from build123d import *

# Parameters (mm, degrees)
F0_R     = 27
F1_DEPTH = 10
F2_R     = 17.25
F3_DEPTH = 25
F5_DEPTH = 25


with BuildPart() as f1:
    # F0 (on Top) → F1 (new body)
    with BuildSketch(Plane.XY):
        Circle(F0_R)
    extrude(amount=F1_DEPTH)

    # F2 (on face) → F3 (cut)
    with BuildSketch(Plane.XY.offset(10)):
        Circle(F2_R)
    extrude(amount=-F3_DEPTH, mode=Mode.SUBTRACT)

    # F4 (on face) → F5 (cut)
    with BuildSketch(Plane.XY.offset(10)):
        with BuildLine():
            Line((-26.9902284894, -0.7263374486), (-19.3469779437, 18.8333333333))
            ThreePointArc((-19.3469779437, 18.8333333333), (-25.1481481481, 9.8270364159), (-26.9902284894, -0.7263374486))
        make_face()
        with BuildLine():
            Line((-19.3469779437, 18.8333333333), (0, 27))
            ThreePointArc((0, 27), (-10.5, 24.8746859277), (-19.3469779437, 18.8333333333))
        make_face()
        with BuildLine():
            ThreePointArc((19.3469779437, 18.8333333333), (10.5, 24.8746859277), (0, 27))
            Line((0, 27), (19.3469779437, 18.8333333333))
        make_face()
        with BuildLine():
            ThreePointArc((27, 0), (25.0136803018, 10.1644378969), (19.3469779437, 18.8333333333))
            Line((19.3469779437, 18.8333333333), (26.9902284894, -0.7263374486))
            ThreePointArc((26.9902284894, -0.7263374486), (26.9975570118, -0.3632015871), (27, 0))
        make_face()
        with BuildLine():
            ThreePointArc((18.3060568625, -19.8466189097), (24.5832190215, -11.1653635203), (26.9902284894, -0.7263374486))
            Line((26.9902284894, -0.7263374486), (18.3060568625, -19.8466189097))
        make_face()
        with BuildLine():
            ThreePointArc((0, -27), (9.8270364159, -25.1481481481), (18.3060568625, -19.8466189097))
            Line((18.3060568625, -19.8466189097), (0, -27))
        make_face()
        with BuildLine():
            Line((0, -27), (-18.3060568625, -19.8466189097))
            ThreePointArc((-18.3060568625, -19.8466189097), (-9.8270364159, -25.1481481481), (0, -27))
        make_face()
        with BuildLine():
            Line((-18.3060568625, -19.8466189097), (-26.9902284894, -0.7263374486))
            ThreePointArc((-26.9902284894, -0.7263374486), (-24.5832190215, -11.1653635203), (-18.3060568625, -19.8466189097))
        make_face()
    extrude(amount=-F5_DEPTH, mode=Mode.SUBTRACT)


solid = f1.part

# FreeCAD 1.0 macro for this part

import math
import FreeCAD as App
import Part
import Sketcher
from FreeCAD import Vector
Q = App.Units.Quantity

doc = App.newDocument("Part")
body = doc.addObject("PartDesign::Body", "Body")

# Sketch on XY plane
sketch1 = body.newObject("Sketcher::SketchObject", "Sketch")
sketch1.AttachmentSupport = (doc.getObject("XY_Plane"), [""])
sketch1.MapMode = "FlatFace"
sketch1.addGeometry(Part.Circle(Vector(0, 0, 0), Vector(0, 0, 1), 27), False)
sketch1.addConstraint([
    Sketcher.Constraint("Coincident", 0, 3, -1, 1),
    Sketcher.Constraint("Diameter", 0, Q("54 mm")),
])
pad1 = body.newObject("PartDesign::Pad", "Pad")
pad1.Profile = sketch1
pad1.Length = 10

# Sketch on XY plane
sketch2 = body.newObject("Sketcher::SketchObject", "Sketch001")
sketch2.AttachmentSupport = (doc.getObject("XY_Plane"), [""])
sketch2.MapMode = "FlatFace"
sketch2.AttachmentOffset = App.Placement(Vector(0, 0, 10), App.Rotation())
sketch2.addGeometry(Part.Circle(Vector(0, 0, 0), Vector(0, 0, 1), 17.25), False)
sketch2.addConstraint([
    Sketcher.Constraint("Coincident", 0, 3, -1, 1),
    Sketcher.Constraint("Diameter", 0, Q("34.5 mm")),
])
pocket1 = body.newObject("PartDesign::Pocket", "Pocket")
pocket1.Profile = sketch2
pocket1.Length = 25

# Sketch on XY plane
sketch3 = body.newObject("Sketcher::SketchObject", "Sketch002")
sketch3.AttachmentSupport = (doc.getObject("XY_Plane"), [""])
sketch3.MapMode = "FlatFace"
sketch3.AttachmentOffset = App.Placement(Vector(0, 0, 10), App.Rotation())
sketch3.addGeometry([
    Part.LineSegment(Vector(-26.990228, -0.726337, 0), Vector(-19.346978, 18.833333, 0)),  # 0
    Part.ArcOfCircle(Part.Circle(Vector(0, 0, 0), Vector(0, 0, 1), 27), math.radians(135.770761), math.radians(181.541522)),  # 1
    Part.LineSegment(Vector(-19.346978, 18.833333, 0), Vector(0, 27, 0)),  # 2
    Part.ArcOfCircle(Part.Circle(Vector(0, 0, 0), Vector(0, 0, 1), 27), math.radians(90), math.radians(135.770761)),  # 3
    Part.ArcOfCircle(Part.Circle(Vector(0, 0, 0), Vector(0, 0, 1), 27), math.radians(44.229239), math.radians(90)),  # 4
    Part.LineSegment(Vector(0, 27, 0), Vector(19.346978, 18.833333, 0)),  # 5
    Part.ArcOfCircle(Part.Circle(Vector(0, 0, 0), Vector(0, 0, 1), 27), math.radians(0), math.radians(44.229239)),  # 6
    Part.LineSegment(Vector(19.346978, 18.833333, 0), Vector(26.990228, -0.726337, 0)),  # 7
    Part.ArcOfCircle(Part.Circle(Vector(0, 0, 0), Vector(0, 0, 1), 27), math.radians(-1.541522), math.radians(0)),  # 8
    Part.ArcOfCircle(Part.Circle(Vector(0, 0, 0), Vector(0, 0, 1), 27), math.radians(-47.312283), math.radians(-1.541522)),  # 9
    Part.LineSegment(Vector(26.990228, -0.726337, 0), Vector(18.306057, -19.846619, 0)),  # 10
    Part.ArcOfCircle(Part.Circle(Vector(0, 0, 0), Vector(0, 0, 1), 27), math.radians(-90), math.radians(-47.312283)),  # 11
    Part.LineSegment(Vector(18.306057, -19.846619, 0), Vector(0, -27, 0)),  # 12
    Part.LineSegment(Vector(0, -27, 0), Vector(-18.306057, -19.846619, 0)),  # 13
    Part.ArcOfCircle(Part.Circle(Vector(0, 0, 0), Vector(0, 0, 1), 27), math.radians(-132.687717), math.radians(-90)),  # 14
    Part.LineSegment(Vector(-18.306057, -19.846619, 0), Vector(-26.990228, -0.726337, 0)),  # 15
    Part.ArcOfCircle(Part.Circle(Vector(0, 0, 0), Vector(0, 0, 1), 27), math.radians(-178.458478), math.radians(-132.687717)),  # 16
], False)
sketch3.addConstraint([
    Sketcher.Constraint("Coincident", 0, 1, 1, 2),
    Sketcher.Constraint("Coincident", 1, 1, 0, 2),
    Sketcher.Constraint("Coincident", 2, 1, 3, 2),
    Sketcher.Constraint("Coincident", 3, 1, 2, 2),
    Sketcher.Constraint("Coincident", 4, 1, 5, 2),
    Sketcher.Constraint("Coincident", 5, 1, 4, 2),
    Sketcher.Constraint("Coincident", 6, 2, 7, 1),
    Sketcher.Constraint("Coincident", 7, 2, 8, 1),
    Sketcher.Constraint("Tangent", 8, 2, 6, 1),
    Sketcher.Constraint("Coincident", 9, 1, 10, 2),
    Sketcher.Constraint("Coincident", 10, 1, 9, 2),
    Sketcher.Constraint("Coincident", 11, 1, 12, 2),
    Sketcher.Constraint("Coincident", 12, 1, 11, 2),
    Sketcher.Constraint("Coincident", 13, 1, 14, 2),
    Sketcher.Constraint("Coincident", 14, 1, 13, 2),
    Sketcher.Constraint("Coincident", 15, 1, 16, 2),
    Sketcher.Constraint("Coincident", 16, 1, 15, 2),
    Sketcher.Constraint("Coincident", 1, 3, -1, 1),
    Sketcher.Constraint("Coincident", 3, 3, -1, 1),
    Sketcher.Constraint("Coincident", 4, 3, -1, 1),
    Sketcher.Constraint("Coincident", 6, 3, -1, 1),
    Sketcher.Constraint("Coincident", 9, 3, -1, 1),
    Sketcher.Constraint("Coincident", 11, 3, -1, 1),
    Sketcher.Constraint("Coincident", 14, 3, -1, 1),
    Sketcher.Constraint("Coincident", 16, 3, -1, 1),
    Sketcher.Constraint("Coincident", 2, 1, 1, 1),
    Sketcher.Constraint("Coincident", 5, 1, 3, 1),
    Sketcher.Constraint("Coincident", 6, 2, 4, 1),
    Sketcher.Constraint("Coincident", 10, 1, 7, 2),
    Sketcher.Constraint("Coincident", 12, 1, 9, 1),
    Sketcher.Constraint("Coincident", 13, 1, 11, 1),
    Sketcher.Constraint("Coincident", 15, 1, 14, 1),
    Sketcher.Constraint("Equal", 6, 8),
    Sketcher.Constraint("PointOnObject", 3, 1, -2),
    Sketcher.Constraint("PointOnObject", 8, 2, -1),
    Sketcher.Constraint("PointOnObject", 11, 1, -2),
    Sketcher.Constraint("Perpendicular", 7, 12),
    Sketcher.Constraint("Perpendicular", 0, 13),
    Sketcher.Constraint("Horizontal", 2, 1, 4, 1),
    Sketcher.Constraint("Horizontal", 0, 1, 7, 2),
    Sketcher.Constraint("Horizontal", 10, 1, 16, 1),
    Sketcher.Constraint("Equal", 0, 2),
    Sketcher.Constraint("Radius", 1, Q("27 mm")),
    Sketcher.Constraint("Distance", 0, Q("21 mm")),
])
pocket2 = body.newObject("PartDesign::Pocket", "Pocket001")
pocket2.Profile = sketch3
pocket2.Length = 25

doc.recompute()
